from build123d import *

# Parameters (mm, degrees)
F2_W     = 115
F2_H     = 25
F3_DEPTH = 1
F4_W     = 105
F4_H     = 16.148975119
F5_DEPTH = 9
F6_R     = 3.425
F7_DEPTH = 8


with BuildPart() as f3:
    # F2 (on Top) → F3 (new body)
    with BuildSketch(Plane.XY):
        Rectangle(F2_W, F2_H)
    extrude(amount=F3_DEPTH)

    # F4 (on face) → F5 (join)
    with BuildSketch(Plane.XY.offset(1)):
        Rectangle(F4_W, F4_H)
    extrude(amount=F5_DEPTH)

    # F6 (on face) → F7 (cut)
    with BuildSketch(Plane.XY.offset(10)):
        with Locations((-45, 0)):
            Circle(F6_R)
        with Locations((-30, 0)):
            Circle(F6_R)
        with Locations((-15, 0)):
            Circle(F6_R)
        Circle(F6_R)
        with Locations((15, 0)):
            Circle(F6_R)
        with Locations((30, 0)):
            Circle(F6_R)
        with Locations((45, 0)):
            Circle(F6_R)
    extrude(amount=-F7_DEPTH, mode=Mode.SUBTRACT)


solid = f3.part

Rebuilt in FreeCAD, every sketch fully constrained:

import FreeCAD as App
import Part
import Sketcher


def add_polygon(sketch, points):
    """Adds a closed chain of lines whose ends are joined by coincident constraints."""
    first, n = sketch.GeometryCount, len(points)
    for a, b in zip(points, points[1:] + points[:1]):
        sketch.addGeometry(Part.LineSegment(App.Vector(*a, 0), App.Vector(*b, 0)), False)
    for i in range(n):
        sketch.addConstraint(Sketcher.Constraint("Coincident", first + i, 2, first + (i + 1) % n, 1))

doc = App.newDocument("Part")
body = doc.addObject("PartDesign::Body", "Body")

# Sketch on XY plane
sketch1 = body.newObject("Sketcher::SketchObject", "Sketch")
sketch1.AttachmentSupport = (doc.getObject("XY_Plane"), [""])
sketch1.MapMode = "FlatFace"
add_polygon(sketch1, [(-58, 12), (-58, -12), (58, -12), (58, 12)])  # lines 0-3
sketch1.addConstraint(Sketcher.Constraint("Vertical", 0))
sketch1.addConstraint(Sketcher.Constraint("Horizontal", 1))
sketch1.addConstraint(Sketcher.Constraint("Vertical", 2))
sketch1.addConstraint(Sketcher.Constraint("Horizontal", 3))
sketch1.addConstraint(Sketcher.Constraint("Symmetric", 0, 2, 2, 2, -1, 1))
sketch1.addConstraint(Sketcher.Constraint("DistanceX", 1, 1, 1, 2, 115.0))
sketch1.addConstraint(Sketcher.Constraint("DistanceY", 0, 2, 0, 1, 25.0))
pad1 = body.newObject("PartDesign::Pad", "Pad")
pad1.Profile = sketch1
pad1.Length = 1

# Sketch on XY plane
sketch2 = body.newObject("Sketcher::SketchObject", "Sketch001")
sketch2.AttachmentSupport = (doc.getObject("XY_Plane"), [""])
sketch2.MapMode = "FlatFace"
sketch2.AttachmentOffset = App.Placement(App.Vector(0, 0, 1), App.Rotation())
add_polygon(sketch2, [(-52, 8), (-52, -8), (52, -8), (52, 8)])  # lines 0-3
sketch2.addConstraint(Sketcher.Constraint("Vertical", 0))
sketch2.addConstraint(Sketcher.Constraint("Horizontal", 1))
sketch2.addConstraint(Sketcher.Constraint("Vertical", 2))
sketch2.addConstraint(Sketcher.Constraint("Horizontal", 3))
sketch2.addConstraint(Sketcher.Constraint("Symmetric", 0, 2, 2, 2, -1, 1))
sketch2.addConstraint(Sketcher.Constraint("DistanceX", 1, 1, 1, 2, 105.0))
sketch2.addConstraint(Sketcher.Constraint("DistanceY", 0, 2, 0, 1, 16.148975))
pad2 = body.newObject("PartDesign::Pad", "Pad001")
pad2.Profile = sketch2
pad2.Length = 9

# Sketch on XY plane
sketch3 = body.newObject("Sketcher::SketchObject", "Sketch002")
sketch3.AttachmentSupport = (doc.getObject("XY_Plane"), [""])
sketch3.MapMode = "FlatFace"
sketch3.AttachmentOffset = App.Placement(App.Vector(0, 0, 10), App.Rotation())
sketch3.addGeometry(Part.Circle(App.Vector(-45, 0, 0), App.Vector(0, 0, 1), 3.4), False)
sketch3.addGeometry(Part.Circle(App.Vector(-30, 0, 0), App.Vector(0, 0, 1), 3.4), False)
sketch3.addGeometry(Part.Circle(App.Vector(-15, 0, 0), App.Vector(0, 0, 1), 3.4), False)
sketch3.addGeometry(Part.Circle(App.Vector(0, 0, 0), App.Vector(0, 0, 1), 3.4), False)
sketch3.addGeometry(Part.Circle(App.Vector(15, 0, 0), App.Vector(0, 0, 1), 3.4), False)
sketch3.addGeometry(Part.Circle(App.Vector(30, 0, 0), App.Vector(0, 0, 1), 3.4), False)
sketch3.addGeometry(Part.Circle(App.Vector(45, 0, 0), App.Vector(0, 0, 1), 3.4), False)
sketch3.addConstraint(Sketcher.Constraint("Coincident", 3, 3, -1, 1))
sketch3.addConstraint(Sketcher.Constraint("Equal", 0, 1))
sketch3.addConstraint(Sketcher.Constraint("Equal", 1, 2))
sketch3.addConstraint(Sketcher.Constraint("Equal", 2, 3))
sketch3.addConstraint(Sketcher.Constraint("Equal", 3, 4))
sketch3.addConstraint(Sketcher.Constraint("Equal", 4, 5))
sketch3.addConstraint(Sketcher.Constraint("Equal", 5, 6))
sketch3.addConstraint(Sketcher.Constraint("Symmetric", 2, 3, 4, 3, -1, 1))
sketch3.addConstraint(Sketcher.Constraint("Symmetric", 1, 3, 5, 3, -1, 1))
sketch3.addConstraint(Sketcher.Constraint("Symmetric", 0, 3, 6, 3, -1, 1))
sketch3.addConstraint(Sketcher.Constraint("PointOnObject", 0, 3, -1))
sketch3.addConstraint(Sketcher.Constraint("PointOnObject", 1, 3, -1))
sketch3.addConstraint(Sketcher.Constraint("PointOnObject", 2, 3, -1))
sketch3.addConstraint(Sketcher.Constraint("Diameter", 0, 6.85))
sketch3.addConstraint(Sketcher.Constraint("DistanceX", 0, 3, -1, 1, 45.0))
sketch3.addConstraint(Sketcher.Constraint("DistanceX", 1, 3, -1, 1, 30.0))
sketch3.addConstraint(Sketcher.Constraint("DistanceX", 2, 3, -1, 1, 15.0))
pocket1 = body.newObject("PartDesign::Pocket", "Pocket")
pocket1.Profile = sketch3
pocket1.Length = 8

doc.recompute()
